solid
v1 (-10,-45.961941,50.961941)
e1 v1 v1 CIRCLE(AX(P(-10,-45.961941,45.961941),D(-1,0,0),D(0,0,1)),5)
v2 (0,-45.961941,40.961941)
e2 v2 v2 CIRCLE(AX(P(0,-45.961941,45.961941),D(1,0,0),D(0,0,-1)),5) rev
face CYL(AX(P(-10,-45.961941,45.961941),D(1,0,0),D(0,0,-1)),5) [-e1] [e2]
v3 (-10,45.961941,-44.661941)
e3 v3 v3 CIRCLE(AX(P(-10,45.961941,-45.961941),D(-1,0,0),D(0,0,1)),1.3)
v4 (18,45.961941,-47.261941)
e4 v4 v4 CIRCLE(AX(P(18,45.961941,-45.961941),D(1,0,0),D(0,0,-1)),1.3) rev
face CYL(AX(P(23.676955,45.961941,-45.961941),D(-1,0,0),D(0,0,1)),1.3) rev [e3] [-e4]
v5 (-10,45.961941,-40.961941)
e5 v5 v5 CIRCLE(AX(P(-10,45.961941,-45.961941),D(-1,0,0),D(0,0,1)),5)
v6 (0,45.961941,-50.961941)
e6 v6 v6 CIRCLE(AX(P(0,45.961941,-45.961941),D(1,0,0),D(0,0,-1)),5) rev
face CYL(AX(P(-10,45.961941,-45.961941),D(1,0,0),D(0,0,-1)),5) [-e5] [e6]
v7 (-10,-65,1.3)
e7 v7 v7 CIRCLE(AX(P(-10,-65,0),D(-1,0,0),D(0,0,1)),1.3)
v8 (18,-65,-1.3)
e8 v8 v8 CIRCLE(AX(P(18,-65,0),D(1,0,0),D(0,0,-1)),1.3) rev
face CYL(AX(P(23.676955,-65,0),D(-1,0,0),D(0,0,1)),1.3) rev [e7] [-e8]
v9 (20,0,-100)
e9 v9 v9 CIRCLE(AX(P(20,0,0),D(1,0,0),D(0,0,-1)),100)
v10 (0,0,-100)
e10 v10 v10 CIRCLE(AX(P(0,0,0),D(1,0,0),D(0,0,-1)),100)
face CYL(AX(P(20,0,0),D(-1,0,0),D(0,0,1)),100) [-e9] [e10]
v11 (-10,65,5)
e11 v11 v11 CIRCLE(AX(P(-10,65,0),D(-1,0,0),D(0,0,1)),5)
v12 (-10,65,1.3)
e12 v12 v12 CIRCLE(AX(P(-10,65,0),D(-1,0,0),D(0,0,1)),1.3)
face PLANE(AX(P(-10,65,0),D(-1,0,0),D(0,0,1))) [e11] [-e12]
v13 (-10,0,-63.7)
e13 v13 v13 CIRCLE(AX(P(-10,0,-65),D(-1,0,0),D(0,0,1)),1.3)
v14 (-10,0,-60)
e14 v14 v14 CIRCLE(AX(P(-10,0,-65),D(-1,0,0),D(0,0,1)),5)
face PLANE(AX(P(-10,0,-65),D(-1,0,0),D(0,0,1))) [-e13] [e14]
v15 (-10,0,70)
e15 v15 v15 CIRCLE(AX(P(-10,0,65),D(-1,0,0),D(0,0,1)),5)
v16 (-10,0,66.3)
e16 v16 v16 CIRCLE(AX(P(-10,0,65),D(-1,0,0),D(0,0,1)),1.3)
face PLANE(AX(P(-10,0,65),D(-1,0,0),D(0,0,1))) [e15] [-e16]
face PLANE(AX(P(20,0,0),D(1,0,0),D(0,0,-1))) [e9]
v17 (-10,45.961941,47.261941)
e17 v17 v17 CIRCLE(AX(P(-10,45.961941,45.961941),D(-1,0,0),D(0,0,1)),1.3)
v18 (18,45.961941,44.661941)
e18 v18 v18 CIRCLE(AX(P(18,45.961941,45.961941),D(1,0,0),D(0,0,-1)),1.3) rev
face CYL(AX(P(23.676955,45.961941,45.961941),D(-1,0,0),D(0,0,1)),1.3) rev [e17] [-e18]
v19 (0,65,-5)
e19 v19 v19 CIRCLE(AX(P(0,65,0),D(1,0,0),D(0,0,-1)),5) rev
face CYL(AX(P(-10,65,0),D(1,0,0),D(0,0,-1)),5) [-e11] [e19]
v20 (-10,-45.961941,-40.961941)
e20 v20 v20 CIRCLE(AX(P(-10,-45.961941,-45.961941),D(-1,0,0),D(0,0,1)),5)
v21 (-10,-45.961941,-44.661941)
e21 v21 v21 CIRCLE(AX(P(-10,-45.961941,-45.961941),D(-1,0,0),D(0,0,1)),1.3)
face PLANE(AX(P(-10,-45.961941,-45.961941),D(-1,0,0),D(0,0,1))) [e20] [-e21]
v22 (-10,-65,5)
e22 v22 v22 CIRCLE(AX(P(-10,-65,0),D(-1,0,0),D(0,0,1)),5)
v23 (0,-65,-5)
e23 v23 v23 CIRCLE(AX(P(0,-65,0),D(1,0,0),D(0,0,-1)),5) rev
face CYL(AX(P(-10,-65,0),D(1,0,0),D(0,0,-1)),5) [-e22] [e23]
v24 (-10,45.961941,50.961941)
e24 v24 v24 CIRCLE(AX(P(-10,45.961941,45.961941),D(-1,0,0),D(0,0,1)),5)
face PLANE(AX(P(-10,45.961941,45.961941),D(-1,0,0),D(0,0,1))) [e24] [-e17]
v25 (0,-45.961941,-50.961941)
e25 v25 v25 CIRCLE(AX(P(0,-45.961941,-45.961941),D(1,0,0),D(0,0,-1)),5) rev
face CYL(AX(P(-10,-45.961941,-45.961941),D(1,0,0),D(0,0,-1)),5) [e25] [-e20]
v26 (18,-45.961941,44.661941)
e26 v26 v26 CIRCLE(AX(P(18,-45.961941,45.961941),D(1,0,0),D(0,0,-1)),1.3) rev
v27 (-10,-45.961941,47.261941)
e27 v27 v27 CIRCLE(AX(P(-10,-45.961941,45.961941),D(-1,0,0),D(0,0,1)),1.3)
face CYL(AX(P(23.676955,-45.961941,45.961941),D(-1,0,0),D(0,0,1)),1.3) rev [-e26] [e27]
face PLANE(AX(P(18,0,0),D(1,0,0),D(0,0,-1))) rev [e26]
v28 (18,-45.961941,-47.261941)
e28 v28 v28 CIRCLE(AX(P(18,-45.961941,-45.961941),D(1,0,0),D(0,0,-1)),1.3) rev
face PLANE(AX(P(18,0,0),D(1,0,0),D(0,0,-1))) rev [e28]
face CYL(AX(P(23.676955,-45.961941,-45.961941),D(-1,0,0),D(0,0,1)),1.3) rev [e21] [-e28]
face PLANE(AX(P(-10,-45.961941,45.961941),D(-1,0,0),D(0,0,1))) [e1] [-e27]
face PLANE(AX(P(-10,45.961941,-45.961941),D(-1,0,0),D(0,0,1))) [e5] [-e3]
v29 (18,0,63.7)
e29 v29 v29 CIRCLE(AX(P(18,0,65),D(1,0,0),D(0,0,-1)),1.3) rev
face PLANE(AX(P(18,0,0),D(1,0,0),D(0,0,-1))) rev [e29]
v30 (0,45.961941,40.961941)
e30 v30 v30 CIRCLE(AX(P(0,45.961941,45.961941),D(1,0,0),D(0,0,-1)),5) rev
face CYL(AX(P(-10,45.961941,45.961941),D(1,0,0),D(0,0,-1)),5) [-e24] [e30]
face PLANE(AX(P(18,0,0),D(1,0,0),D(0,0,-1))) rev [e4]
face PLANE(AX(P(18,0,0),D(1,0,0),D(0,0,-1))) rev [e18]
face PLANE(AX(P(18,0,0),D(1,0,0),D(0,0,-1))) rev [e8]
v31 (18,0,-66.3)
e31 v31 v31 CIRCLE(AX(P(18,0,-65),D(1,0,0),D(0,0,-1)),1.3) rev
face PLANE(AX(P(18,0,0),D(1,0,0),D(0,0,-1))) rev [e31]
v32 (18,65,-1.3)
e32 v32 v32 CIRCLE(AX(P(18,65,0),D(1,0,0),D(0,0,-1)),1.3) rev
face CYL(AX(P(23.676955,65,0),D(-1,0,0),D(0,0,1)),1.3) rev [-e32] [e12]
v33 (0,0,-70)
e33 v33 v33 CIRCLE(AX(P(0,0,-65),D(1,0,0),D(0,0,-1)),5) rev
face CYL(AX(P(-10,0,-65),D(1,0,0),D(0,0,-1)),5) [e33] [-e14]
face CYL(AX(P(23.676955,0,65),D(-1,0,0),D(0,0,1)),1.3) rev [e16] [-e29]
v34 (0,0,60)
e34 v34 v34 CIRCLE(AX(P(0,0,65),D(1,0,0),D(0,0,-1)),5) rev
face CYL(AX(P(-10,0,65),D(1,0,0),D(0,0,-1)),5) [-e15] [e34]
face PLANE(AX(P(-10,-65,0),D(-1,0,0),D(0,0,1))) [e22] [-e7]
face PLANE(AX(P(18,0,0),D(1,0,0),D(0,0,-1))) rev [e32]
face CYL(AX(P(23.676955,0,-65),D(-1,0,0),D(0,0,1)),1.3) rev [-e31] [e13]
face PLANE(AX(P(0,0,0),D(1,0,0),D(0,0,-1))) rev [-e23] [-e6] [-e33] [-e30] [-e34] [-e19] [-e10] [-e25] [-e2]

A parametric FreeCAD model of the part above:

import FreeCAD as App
import Part
import Sketcher

V = App.Vector
Q = App.Units.Quantity

doc = App.newDocument("Part")
body = doc.addObject("PartDesign::Body", "Body")

# Sketch on YZ plane
sketch1 = doc.addObject("Sketcher::SketchObject", "Sketch")
body.addObject(sketch1)
sketch1.AttachmentSupport = (doc.YZ_Plane, [""])
sketch1.MapMode = "FlatFace"
sketch1.addGeometry(Part.Circle(V(0, 0, 0), V(0, 0, 1), 100), False)
sketch1.addConstraint([
    Sketcher.Constraint("Coincident", 0, 3, -1, 1),
    Sketcher.Constraint("Diameter", 0, Q("200 mm")),
])
pad1 = doc.addObject("PartDesign::Pad", "Pad")
body.addObject(pad1)
pad1.Profile = sketch1
pad1.Length = 20

# Sketch on YZ plane
sketch2 = doc.addObject("Sketcher::SketchObject", "Sketch001")
body.addObject(sketch2)
sketch2.AttachmentSupport = (doc.YZ_Plane, [""])
sketch2.MapMode = "FlatFace"
sketch2.addGeometry([
    Part.Circle(V(65, 0, 0), V(0, 0, 1), 1.3),  # 0
    Part.Circle(V(46, 46, 0), V(0, 0, 1), 1.3),  # 1
    Part.Circle(V(0, 65, 0), V(0, 0, 1), 1.3),  # 2
    Part.Circle(V(-46, 46, 0), V(0, 0, 1), 1.3),  # 3
    Part.Circle(V(-65, 0, 0), V(0, 0, 1), 1.3),  # 4
    Part.Circle(V(-46, -46, 0), V(0, 0, 1), 1.3),  # 5
    Part.Circle(V(0, -65, 0), V(0, 0, 1), 1.3),  # 6
    Part.Circle(V(46, -46, 0), V(0, 0, 1), 1.3),  # 7
], False)
sketch2.addConstraint([
    Sketcher.Constraint("Equal", 0, 1),
    Sketcher.Constraint("Equal", 1, 2),
    Sketcher.Constraint("Equal", 2, 3),
    Sketcher.Constraint("Equal", 3, 4),
    Sketcher.Constraint("Equal", 4, 5),
    Sketcher.Constraint("Equal", 5, 6),
    Sketcher.Constraint("Equal", 6, 7),
    Sketcher.Constraint("Symmetric", 0, 3, 4, 3, -1, 1),
    Sketcher.Constraint("Symmetric", 1, 3, 5, 3, -1, 1),
    Sketcher.Constraint("Symmetric", 2, 3, 6, 3, -1, 1),
    Sketcher.Constraint("Symmetric", 3, 3, 7, 3, -1, 1),
    Sketcher.Constraint("Symmetric", 1, 3, 3, 3, -2),
    Sketcher.Constraint("PointOnObject", 0, 3, -1),
    Sketcher.Constraint("PointOnObject", 2, 3, -2),
    Sketcher.Constraint("Diameter", 0, Q("2.6 mm")),
    Sketcher.Constraint("DistanceX", -1, 1, 0, 3, Q("65 mm")),
    Sketcher.Constraint("DistanceY", -1, 1, 2, 3, Q("65 mm")),
    Sketcher.Constraint("DistanceX", -1, 1, 1, 3, Q("45.961941 mm")),
    Sketcher.Constraint("DistanceY", -1, 1, 1, 3, Q("45.961941 mm")),
])
pocket1 = doc.addObject("PartDesign::Pocket", "Pocket")
body.addObject(pocket1)
pocket1.Profile = sketch2
pocket1.Length = 18
pocket1.Reversed = True

# Sketch on YZ plane
sketch3 = doc.addObject("Sketcher::SketchObject", "Sketch002")
body.addObject(sketch3)
sketch3.AttachmentSupport = (doc.YZ_Plane, [""])
sketch3.MapMode = "FlatFace"
sketch3.AttachmentOffset = App.Placement(V(0, 0, -10), App.Rotation())
sketch3.addGeometry([
    Part.Circle(V(65, 0, 0), V(0, 0, 1), 5),  # 0
    Part.Circle(V(65, 0, 0), V(0, 0, 1), 1.3),  # 1
    Part.Circle(V(46, 46, 0), V(0, 0, 1), 5),  # 2
    Part.Circle(V(46, 46, 0), V(0, 0, 1), 1.3),  # 3
    Part.Circle(V(0, 65, 0), V(0, 0, 1), 5),  # 4
    Part.Circle(V(0, 65, 0), V(0, 0, 1), 1.3),  # 5
    Part.Circle(V(-46, 46, 0), V(0, 0, 1), 5),  # 6
    Part.Circle(V(-46, 46, 0), V(0, 0, 1), 1.3),  # 7
    Part.Circle(V(-65, 0, 0), V(0, 0, 1), 5),  # 8
    Part.Circle(V(-65, 0, 0), V(0, 0, 1), 1.3),  # 9
    Part.Circle(V(-46, -46, 0), V(0, 0, 1), 5),  # 10
    Part.Circle(V(-46, -46, 0), V(0, 0, 1), 1.3),  # 11
    Part.Circle(V(0, -65, 0), V(0, 0, 1), 5),  # 12
    Part.Circle(V(0, -65, 0), V(0, 0, 1), 1.3),  # 13
    Part.Circle(V(46, -46, 0), V(0, 0, 1), 5),  # 14
    Part.Circle(V(46, -46, 0), V(0, 0, 1), 1.3),  # 15
], False)
sketch3.addConstraint([
    Sketcher.Constraint("Coincident", 1, 3, 0, 3),
    Sketcher.Constraint("Coincident", 3, 3, 2, 3),
    Sketcher.Constraint("Coincident", 5, 3, 4, 3),
    Sketcher.Constraint("Coincident", 7, 3, 6, 3),
    Sketcher.Constraint("Coincident", 9, 3, 8, 3),
    Sketcher.Constraint("Coincident", 11, 3, 10, 3),
    Sketcher.Constraint("Coincident", 13, 3, 12, 3),
    Sketcher.Constraint("Coincident", 15, 3, 14, 3),
    Sketcher.Constraint("Equal", 0, 2),
    Sketcher.Constraint("Equal", 1, 3),
    Sketcher.Constraint("Equal", 2, 4),
    Sketcher.Constraint("Equal", 3, 5),
    Sketcher.Constraint("Equal", 4, 6),
    Sketcher.Constraint("Equal", 5, 7),
    Sketcher.Constraint("Equal", 6, 8),
    Sketcher.Constraint("Equal", 7, 9),
    Sketcher.Constraint("Equal", 8, 10),
    Sketcher.Constraint("Equal", 9, 11),
    Sketcher.Constraint("Equal", 10, 12),
    Sketcher.Constraint("Equal", 11, 13),
    Sketcher.Constraint("Equal", 12, 14),
    Sketcher.Constraint("Equal", 13, 15),
    Sketcher.Constraint("Symmetric", 0, 3, 8, 3, -1, 1),
    Sketcher.Constraint("Symmetric", 2, 3, 10, 3, -1, 1),
    Sketcher.Constraint("Symmetric", 4, 3, 12, 3, -1, 1),
    Sketcher.Constraint("Symmetric", 6, 3, 14, 3, -1, 1),
    Sketcher.Constraint("Symmetric", 2, 3, 6, 3, -2),
    Sketcher.Constraint("PointOnObject", 0, 3, -1),
    Sketcher.Constraint("PointOnObject", 4, 3, -2),
    Sketcher.Constraint("Diameter", 0, Q("10 mm")),
    Sketcher.Constraint("Diameter", 1, Q("2.6 mm")),
    Sketcher.Constraint("DistanceX", -1, 1, 0, 3, Q("65 mm")),
    Sketcher.Constraint("DistanceY", -1, 1, 4, 3, Q("65 mm")),
    Sketcher.Constraint("DistanceX", -1, 1, 2, 3, Q("45.961941 mm")),
    Sketcher.Constraint("DistanceY", -1, 1, 2, 3, Q("45.961941 mm")),
])
pad2 = doc.addObject("PartDesign::Pad", "Pad001")
body.addObject(pad2)
pad2.Profile = sketch3
pad2.Length = 10

doc.recompute()
